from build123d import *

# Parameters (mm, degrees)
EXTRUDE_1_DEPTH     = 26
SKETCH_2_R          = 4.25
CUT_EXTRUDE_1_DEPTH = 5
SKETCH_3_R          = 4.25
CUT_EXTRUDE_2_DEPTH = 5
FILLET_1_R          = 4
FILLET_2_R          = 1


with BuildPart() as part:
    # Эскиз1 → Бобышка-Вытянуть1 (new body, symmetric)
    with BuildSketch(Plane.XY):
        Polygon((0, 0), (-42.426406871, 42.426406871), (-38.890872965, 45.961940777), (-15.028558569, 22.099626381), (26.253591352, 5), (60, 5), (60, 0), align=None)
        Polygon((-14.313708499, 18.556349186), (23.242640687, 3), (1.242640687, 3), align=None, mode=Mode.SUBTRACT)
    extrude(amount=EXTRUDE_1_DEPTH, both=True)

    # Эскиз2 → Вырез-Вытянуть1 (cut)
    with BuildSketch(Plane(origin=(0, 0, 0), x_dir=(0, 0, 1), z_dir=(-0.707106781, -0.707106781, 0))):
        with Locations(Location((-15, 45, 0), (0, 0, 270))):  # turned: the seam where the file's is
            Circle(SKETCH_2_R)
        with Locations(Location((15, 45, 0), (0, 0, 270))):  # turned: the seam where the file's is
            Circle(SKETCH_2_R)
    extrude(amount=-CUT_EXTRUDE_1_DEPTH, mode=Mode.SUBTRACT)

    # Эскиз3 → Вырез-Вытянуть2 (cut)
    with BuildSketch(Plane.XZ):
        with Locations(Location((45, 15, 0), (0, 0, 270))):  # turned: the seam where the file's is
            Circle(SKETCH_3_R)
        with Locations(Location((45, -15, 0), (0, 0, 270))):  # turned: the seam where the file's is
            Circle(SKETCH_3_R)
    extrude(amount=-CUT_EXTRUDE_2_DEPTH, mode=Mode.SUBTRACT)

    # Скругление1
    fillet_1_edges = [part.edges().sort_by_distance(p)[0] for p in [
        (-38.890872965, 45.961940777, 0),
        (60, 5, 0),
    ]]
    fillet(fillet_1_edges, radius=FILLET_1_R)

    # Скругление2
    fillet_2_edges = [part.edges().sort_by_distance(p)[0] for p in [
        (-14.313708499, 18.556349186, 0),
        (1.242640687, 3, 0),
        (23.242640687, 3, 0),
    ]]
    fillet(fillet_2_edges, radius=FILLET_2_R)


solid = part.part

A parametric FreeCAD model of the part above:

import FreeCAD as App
import Part
import Sketcher
Q = App.Units.Quantity


def edges_at(feature, points):
    """Names of the edges that pass closest to the given points."""
    edges = feature.Shape.Edges
    near = lambda p: min(range(len(edges)), key=lambda i: edges[i].distToShape(Part.Vertex(*p))[0])
    return sorted({f"Edge{near(p) + 1}" for p in points})


def add_polygon(sketch, points):
    """Adds a closed chain of lines whose ends are joined by coincident constraints."""
    first, n = sketch.GeometryCount, len(points)
    for a, b in zip(points, points[1:] + points[:1]):
        sketch.addGeometry(Part.LineSegment(App.Vector(*a, 0), App.Vector(*b, 0)), False)
    for i in range(n):
        sketch.addConstraint(Sketcher.Constraint("Coincident", first + i, 2, first + (i + 1) % n, 1))

doc = App.newDocument("Part")
body = doc.addObject("PartDesign::Body", "Body")

sketch1 = body.newObject("Sketcher::SketchObject", "Sketch")
sketch1.AttachmentSupport = (doc.getObject("XY_Plane"), [""])
sketch1.MapMode = "FlatFace"
add_polygon(sketch1, [(-42, 42), (0, 0), (60, 0), (60, 5), (26, 5), (-15, 22), (-39, 46)])
add_polygon(sketch1, [(-14, 19), (23, 3), (1, 3)])
sketch1.addConstraint([
    Sketcher.Constraint("Horizontal", 1),
    Sketcher.Constraint("Vertical", 2),
    Sketcher.Constraint("Horizontal", 3),
    Sketcher.Constraint("Horizontal", 8),
    Sketcher.Constraint("Coincident", 0, 2, -1, 1),
    Sketcher.Constraint("Parallel", 0, 5),
    Sketcher.Constraint("Perpendicular", 5, 6),
    Sketcher.Constraint("Parallel", 4, 7),
    Sketcher.Constraint("Perpendicular", 6, 9),
    Sketcher.Constraint("DistanceX", 1, 1, 1, 2, Q("60 mm")),
    Sketcher.Constraint("DistanceX", 8, 2, 8, 1, Q("22 mm")),
    Sketcher.Constraint("DistanceY", 2, 1, 2, 2, Q("5 mm")),
    Sketcher.Constraint("Angle", 0, Q("-45 deg")),
    Sketcher.Constraint("Distance", 0, Q("60 mm")),
    Sketcher.Constraint("Distance", 6, Q("5 mm")),
    Sketcher.Constraint("Distance", 9, Q("22 mm")),
    Sketcher.Constraint("DistanceY", -1, 1, 7, 2, Q("3 mm")),
    Sketcher.Constraint("DistanceX", 6, 2, 3, 2, Q("68.679998 mm")),
    Sketcher.Constraint("DistanceX", 4, 2, 7, 2, Q("38.271199 mm")),
])
pad1 = body.newObject("PartDesign::Pad", "Pad")
pad1.Profile = sketch1
pad1.Length = 52
pad1.Midplane = True

sketch2 = body.newObject("Sketcher::SketchObject", "Sketch001")
sketch2.Placement = App.Placement(App.Vector(0, 0, 0), App.Rotation(App.Vector(0, 0, 1), App.Vector(-0.707106781, 0.707106781, 0), App.Vector(-0.707106781, -0.707106781, 0), "ZXY"))
sketch2.addGeometry([
    Part.Circle(App.Vector(-15, 45, 0), App.Vector(0, 0, 1), 4.2),
    Part.Circle(App.Vector(15, 45, 0), App.Vector(0, 0, 1), 4.2),
], False)
sketch2.addConstraint([
    Sketcher.Constraint("Equal", 0, 1),
    Sketcher.Constraint("Symmetric", 0, 3, 1, 3, -2),
    Sketcher.Constraint("Diameter", 0, Q("8.5 mm")),
    Sketcher.Constraint("DistanceX", 0, 3, -1, 1, Q("15 mm")),
    Sketcher.Constraint("DistanceY", -1, 1, 0, 3, Q("45 mm")),
])
pocket1 = body.newObject("PartDesign::Pocket", "Pocket")
pocket1.Profile = sketch2
pocket1.Length = 5

sketch3 = body.newObject("Sketcher::SketchObject", "Sketch002")
sketch3.AttachmentSupport = (doc.getObject("XZ_Plane"), [""])
sketch3.MapMode = "FlatFace"
sketch3.addGeometry([
    Part.Circle(App.Vector(45, 15, 0), App.Vector(0, 0, 1), 4.2),
    Part.Circle(App.Vector(45, -15, 0), App.Vector(0, 0, 1), 4.2),
], False)
sketch3.addConstraint([
    Sketcher.Constraint("Equal", 0, 1),
    Sketcher.Constraint("Symmetric", 0, 3, 1, 3, -1),
    Sketcher.Constraint("Diameter", 0, Q("8.5 mm")),
    Sketcher.Constraint("DistanceX", -1, 1, 0, 3, Q("45 mm")),
    Sketcher.Constraint("DistanceY", -1, 1, 0, 3, Q("15 mm")),
])
pocket2 = body.newObject("PartDesign::Pocket", "Pocket001")
pocket2.Profile = sketch3
pocket2.Length = 5
doc.recompute()

fillet = body.newObject("PartDesign::Fillet", "Fillet")
fillet.Base = (pocket2, edges_at(pocket2, [(-38.891, 45.962, 0), (60, 5, 0)]))
fillet.Radius = 4
doc.recompute()

fillet2 = body.newObject("PartDesign::Fillet", "Fillet001")
fillet2.Base = (fillet, edges_at(fillet, [(-14.314, 18.556, 0), (1.243, 3, 0), (23.243, 3, 0)]))
fillet2.Radius = 1

doc.recompute()
